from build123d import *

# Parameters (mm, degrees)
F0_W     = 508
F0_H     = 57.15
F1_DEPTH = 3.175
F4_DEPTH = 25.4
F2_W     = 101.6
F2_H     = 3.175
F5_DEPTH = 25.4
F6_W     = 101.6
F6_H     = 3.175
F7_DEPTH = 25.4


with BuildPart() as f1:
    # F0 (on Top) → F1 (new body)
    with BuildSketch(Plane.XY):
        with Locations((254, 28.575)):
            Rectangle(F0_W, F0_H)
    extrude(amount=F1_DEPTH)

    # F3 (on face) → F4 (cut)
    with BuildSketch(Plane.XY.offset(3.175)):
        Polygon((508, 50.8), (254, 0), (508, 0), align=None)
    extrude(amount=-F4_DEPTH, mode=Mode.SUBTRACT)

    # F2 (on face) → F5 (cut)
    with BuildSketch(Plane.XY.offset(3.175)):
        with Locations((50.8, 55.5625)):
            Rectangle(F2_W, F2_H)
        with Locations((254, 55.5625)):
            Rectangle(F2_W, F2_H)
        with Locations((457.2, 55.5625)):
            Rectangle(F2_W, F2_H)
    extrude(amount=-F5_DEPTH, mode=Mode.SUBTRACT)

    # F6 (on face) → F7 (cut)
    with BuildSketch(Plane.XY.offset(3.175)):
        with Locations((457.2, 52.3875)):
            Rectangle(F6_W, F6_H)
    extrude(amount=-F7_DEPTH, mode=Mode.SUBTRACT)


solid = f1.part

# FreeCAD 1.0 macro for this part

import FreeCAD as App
import Part
import Sketcher
Q = App.Units.Quantity


def add_polygon(sketch, points):
    """Adds a closed chain of lines whose ends are joined by coincident constraints."""
    first, n = sketch.GeometryCount, len(points)
    for a, b in zip(points, points[1:] + points[:1]):
        sketch.addGeometry(Part.LineSegment(App.Vector(*a, 0), App.Vector(*b, 0)), False)
    for i in range(n):
        sketch.addConstraint(Sketcher.Constraint("Coincident", first + i, 2, first + (i + 1) % n, 1))

doc = App.newDocument("Part")
body = doc.addObject("PartDesign::Body", "Body")

sketch1 = body.newObject("Sketcher::SketchObject", "Sketch")
sketch1.AttachmentSupport = (doc.getObject("XY_Plane"), [""])
sketch1.MapMode = "FlatFace"
add_polygon(sketch1, [(0, 57), (0, 0), (508, 0), (508, 57)])
sketch1.addConstraint(Sketcher.Constraint("Vertical", 0))
sketch1.addConstraint(Sketcher.Constraint("Horizontal", 1))
sketch1.addConstraint(Sketcher.Constraint("Vertical", 2))
sketch1.addConstraint(Sketcher.Constraint("Horizontal", 3))
sketch1.addConstraint(Sketcher.Constraint("Coincident", 0, 2, -1, 1))
sketch1.addConstraint(Sketcher.Constraint("DistanceX", 1, 1, 1, 2, Q("20 in")))
sketch1.addConstraint(Sketcher.Constraint("DistanceY", 0, 2, 0, 1, Q("2.25 in")))
pad1 = body.newObject("PartDesign::Pad", "Pad")
pad1.Profile = sketch1
pad1.Length = Q("0.125 in")

sketch2 = body.newObject("Sketcher::SketchObject", "Sketch001")
sketch2.AttachmentSupport = (doc.getObject("XY_Plane"), [""])
sketch2.MapMode = "FlatFace"
sketch2.AttachmentOffset = App.Placement(App.Vector(0, 0, 0.125 * 25.4), App.Rotation())
add_polygon(sketch2, [(508, 51), (254, 0), (508, 0)])
sketch2.addConstraint(Sketcher.Constraint("Horizontal", 1))
sketch2.addConstraint(Sketcher.Constraint("Vertical", 2))
sketch2.addConstraint(Sketcher.Constraint("PointOnObject", 0, 2, -1))
sketch2.addConstraint(Sketcher.Constraint("DistanceX", 1, 1, 1, 2, Q("10 in")))
sketch2.addConstraint(Sketcher.Constraint("DistanceY", 2, 1, 2, 2, Q("2 in")))
sketch2.addConstraint(Sketcher.Constraint("DistanceX", -1, 1, 0, 2, Q("10 in")))
pocket1 = body.newObject("PartDesign::Pocket", "Pocket")
pocket1.Profile = sketch2
pocket1.Length = Q("1 in")

sketch3 = body.newObject("Sketcher::SketchObject", "Sketch002")
sketch3.AttachmentSupport = (doc.getObject("XY_Plane"), [""])
sketch3.MapMode = "FlatFace"
sketch3.AttachmentOffset = App.Placement(App.Vector(0, 0, 0.125 * 25.4), App.Rotation())
add_polygon(sketch3, [(0, 57.1), (0, 54), (101.6, 54), (101.6, 57.1)])
add_polygon(sketch3, [(203.2, 57.1), (203.2, 54), (304.8, 54), (304.8, 57.1)])
add_polygon(sketch3, [(406.4, 57.1), (406.4, 54), (508, 54), (508, 57.1)])
sketch3.addConstraint(Sketcher.Constraint("Vertical", 0))
sketch3.addConstraint(Sketcher.Constraint("Horizontal", 1))
sketch3.addConstraint(Sketcher.Constraint("Vertical", 2))
sketch3.addConstraint(Sketcher.Constraint("Horizontal", 3))
sketch3.addConstraint(Sketcher.Constraint("Vertical", 4))
sketch3.addConstraint(Sketcher.Constraint("Horizontal", 5))
sketch3.addConstraint(Sketcher.Constraint("Vertical", 6))
sketch3.addConstraint(Sketcher.Constraint("Horizontal", 7))
sketch3.addConstraint(Sketcher.Constraint("Vertical", 8))
sketch3.addConstraint(Sketcher.Constraint("Horizontal", 9))
sketch3.addConstraint(Sketcher.Constraint("Vertical", 10))
sketch3.addConstraint(Sketcher.Constraint("Horizontal", 11))
sketch3.addConstraint(Sketcher.Constraint("PointOnObject", 0, 2, -2))
sketch3.addConstraint(Sketcher.Constraint("Horizontal", 1, 2, 4, 2))
sketch3.addConstraint(Sketcher.Constraint("Horizontal", 3, 2, 6, 2))
sketch3.addConstraint(Sketcher.Constraint("Horizontal", 5, 2, 8, 2))
sketch3.addConstraint(Sketcher.Constraint("Horizontal", 7, 2, 10, 2))
sketch3.addConstraint(Sketcher.Constraint("Equal", 3, 5))
sketch3.addConstraint(Sketcher.Constraint("Equal", 7, 9))
sketch3.addConstraint(Sketcher.Constraint("DistanceX", 1, 1, 1, 2, Q("4 in")))
sketch3.addConstraint(Sketcher.Constraint("DistanceX", -1, 1, 4, 2, Q("8 in")))
sketch3.addConstraint(Sketcher.Constraint("DistanceX", -1, 1, 8, 2, Q("16 in")))
sketch3.addConstraint(Sketcher.Constraint("DistanceY", 0, 2, 0, 1, Q("0.125 in")))
sketch3.addConstraint(Sketcher.Constraint("DistanceY", -1, 1, 2, 2, Q("2.25 in")))
pocket2 = body.newObject("PartDesign::Pocket", "Pocket001")
pocket2.Profile = sketch3
pocket2.Length = Q("1 in")

sketch4 = body.newObject("Sketcher::SketchObject", "Sketch003")
sketch4.AttachmentSupport = (doc.getObject("XY_Plane"), [""])
sketch4.MapMode = "FlatFace"
sketch4.AttachmentOffset = App.Placement(App.Vector(0, 0, 0.125 * 25.4), App.Rotation())
add_polygon(sketch4, [(406.4, 54), (406.4, 50.8), (508, 50.8), (508, 54)])
sketch4.addConstraint(Sketcher.Constraint("Vertical", 0))
sketch4.addConstraint(Sketcher.Constraint("Horizontal", 1))
sketch4.addConstraint(Sketcher.Constraint("Vertical", 2))
sketch4.addConstraint(Sketcher.Constraint("Horizontal", 3))
sketch4.addConstraint(Sketcher.Constraint("DistanceX", 1, 1, 1, 2, Q("4 in")))
sketch4.addConstraint(Sketcher.Constraint("DistanceX", -1, 1, 0, 2, Q("16 in")))
sketch4.addConstraint(Sketcher.Constraint("DistanceY", -1, 1, 0, 2, Q("2 in")))
sketch4.addConstraint(Sketcher.Constraint("DistanceY", 0, 2, 0, 1, Q("0.125 in")))
pocket3 = body.newObject("PartDesign::Pocket", "Pocket002")
pocket3.Profile = sketch4
pocket3.Length = Q("1 in")

doc.recompute()
